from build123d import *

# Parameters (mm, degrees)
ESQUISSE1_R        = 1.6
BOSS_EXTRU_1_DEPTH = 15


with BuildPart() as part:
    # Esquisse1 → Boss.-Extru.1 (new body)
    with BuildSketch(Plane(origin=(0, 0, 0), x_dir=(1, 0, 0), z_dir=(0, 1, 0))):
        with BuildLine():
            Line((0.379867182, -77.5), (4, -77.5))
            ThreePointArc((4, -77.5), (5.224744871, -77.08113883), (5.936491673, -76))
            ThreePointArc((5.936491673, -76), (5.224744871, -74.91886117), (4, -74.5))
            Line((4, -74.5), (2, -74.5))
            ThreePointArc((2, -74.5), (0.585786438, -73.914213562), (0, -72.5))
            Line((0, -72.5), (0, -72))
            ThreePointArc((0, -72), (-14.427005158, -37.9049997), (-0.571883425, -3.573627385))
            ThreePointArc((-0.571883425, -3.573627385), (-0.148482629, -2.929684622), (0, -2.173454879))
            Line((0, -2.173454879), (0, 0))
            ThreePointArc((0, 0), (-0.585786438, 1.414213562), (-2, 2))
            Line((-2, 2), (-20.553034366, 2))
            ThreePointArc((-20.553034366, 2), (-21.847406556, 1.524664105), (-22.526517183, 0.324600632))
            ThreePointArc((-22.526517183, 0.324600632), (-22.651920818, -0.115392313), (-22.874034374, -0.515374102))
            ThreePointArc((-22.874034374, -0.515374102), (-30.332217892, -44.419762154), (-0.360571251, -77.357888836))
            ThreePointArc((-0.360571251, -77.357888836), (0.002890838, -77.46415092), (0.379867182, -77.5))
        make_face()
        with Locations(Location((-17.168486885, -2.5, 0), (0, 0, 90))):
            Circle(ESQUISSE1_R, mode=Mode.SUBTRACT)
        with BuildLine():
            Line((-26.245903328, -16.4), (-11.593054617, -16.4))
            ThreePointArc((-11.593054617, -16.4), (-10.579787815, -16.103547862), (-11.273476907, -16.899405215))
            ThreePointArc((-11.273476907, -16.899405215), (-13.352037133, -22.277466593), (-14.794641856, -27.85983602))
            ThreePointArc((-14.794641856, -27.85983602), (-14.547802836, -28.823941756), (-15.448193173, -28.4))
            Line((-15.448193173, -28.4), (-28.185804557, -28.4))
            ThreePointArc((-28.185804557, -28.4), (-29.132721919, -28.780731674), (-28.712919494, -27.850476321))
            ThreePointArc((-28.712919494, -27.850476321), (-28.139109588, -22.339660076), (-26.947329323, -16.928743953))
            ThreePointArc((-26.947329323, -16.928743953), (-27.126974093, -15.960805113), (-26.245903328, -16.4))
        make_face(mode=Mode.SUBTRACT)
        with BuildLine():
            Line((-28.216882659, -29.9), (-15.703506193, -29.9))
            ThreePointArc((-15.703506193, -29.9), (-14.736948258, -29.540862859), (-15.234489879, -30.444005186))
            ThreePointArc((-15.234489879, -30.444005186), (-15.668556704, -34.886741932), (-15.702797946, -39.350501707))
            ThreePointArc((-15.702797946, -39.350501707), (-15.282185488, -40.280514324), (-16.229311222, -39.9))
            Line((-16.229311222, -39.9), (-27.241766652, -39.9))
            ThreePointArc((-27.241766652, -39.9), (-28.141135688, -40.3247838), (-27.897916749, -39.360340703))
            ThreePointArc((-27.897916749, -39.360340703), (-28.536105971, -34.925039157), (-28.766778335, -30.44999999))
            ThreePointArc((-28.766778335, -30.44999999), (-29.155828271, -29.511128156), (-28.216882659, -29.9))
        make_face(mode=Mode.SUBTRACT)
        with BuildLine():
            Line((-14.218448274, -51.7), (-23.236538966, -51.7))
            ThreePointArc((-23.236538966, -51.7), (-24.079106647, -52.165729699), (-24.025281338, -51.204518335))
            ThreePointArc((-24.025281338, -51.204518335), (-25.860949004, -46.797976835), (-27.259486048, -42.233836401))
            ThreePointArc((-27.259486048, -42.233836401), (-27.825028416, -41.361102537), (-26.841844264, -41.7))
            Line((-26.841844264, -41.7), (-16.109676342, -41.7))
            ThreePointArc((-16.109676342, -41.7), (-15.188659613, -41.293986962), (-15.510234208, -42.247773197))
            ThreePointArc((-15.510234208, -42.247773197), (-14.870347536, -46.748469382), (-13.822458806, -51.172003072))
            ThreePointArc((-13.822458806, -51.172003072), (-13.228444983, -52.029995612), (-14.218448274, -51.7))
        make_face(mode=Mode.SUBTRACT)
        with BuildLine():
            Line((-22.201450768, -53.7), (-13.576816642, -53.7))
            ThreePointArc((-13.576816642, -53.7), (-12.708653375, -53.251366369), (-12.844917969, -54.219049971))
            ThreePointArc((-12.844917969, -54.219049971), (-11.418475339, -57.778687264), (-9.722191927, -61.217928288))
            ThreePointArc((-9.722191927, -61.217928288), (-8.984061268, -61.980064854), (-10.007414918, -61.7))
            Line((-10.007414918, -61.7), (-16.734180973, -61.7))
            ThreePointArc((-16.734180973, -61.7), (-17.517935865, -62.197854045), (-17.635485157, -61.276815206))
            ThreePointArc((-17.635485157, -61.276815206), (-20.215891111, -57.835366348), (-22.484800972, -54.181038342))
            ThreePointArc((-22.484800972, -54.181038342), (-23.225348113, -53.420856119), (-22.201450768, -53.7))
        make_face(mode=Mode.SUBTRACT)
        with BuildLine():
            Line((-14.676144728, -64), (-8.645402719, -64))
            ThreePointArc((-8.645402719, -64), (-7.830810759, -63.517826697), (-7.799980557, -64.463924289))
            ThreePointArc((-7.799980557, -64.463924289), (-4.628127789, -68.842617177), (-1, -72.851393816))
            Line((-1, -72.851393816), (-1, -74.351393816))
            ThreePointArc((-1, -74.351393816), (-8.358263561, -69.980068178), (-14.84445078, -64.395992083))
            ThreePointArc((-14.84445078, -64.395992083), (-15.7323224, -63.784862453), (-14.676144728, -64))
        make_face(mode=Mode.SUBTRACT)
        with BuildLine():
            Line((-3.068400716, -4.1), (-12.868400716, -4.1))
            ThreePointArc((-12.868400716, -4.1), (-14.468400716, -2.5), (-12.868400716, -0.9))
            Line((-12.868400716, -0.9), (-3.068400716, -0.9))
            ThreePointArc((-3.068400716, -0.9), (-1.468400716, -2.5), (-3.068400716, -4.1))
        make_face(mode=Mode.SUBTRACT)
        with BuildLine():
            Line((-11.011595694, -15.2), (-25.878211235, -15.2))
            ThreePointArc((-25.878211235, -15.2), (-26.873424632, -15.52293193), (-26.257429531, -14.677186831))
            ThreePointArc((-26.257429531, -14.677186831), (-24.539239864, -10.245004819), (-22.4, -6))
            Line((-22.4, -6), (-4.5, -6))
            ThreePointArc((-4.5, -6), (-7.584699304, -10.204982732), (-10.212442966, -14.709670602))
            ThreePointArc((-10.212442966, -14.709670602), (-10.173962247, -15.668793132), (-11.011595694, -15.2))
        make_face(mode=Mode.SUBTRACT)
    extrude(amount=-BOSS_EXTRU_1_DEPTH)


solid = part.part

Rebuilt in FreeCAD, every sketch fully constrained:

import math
import FreeCAD as App
import Part
import Sketcher
from FreeCAD import Vector
Q = App.Units.Quantity

doc = App.newDocument("Part")
params = doc.addObject("Spreadsheet::Sheet", "Params")
for row, (alias, value) in enumerate([
    ("sketch1_radius", "2 mm"),
    ("sketch1_diameter", "3.2 mm"),
    ("sketch1_width", "2 mm"),
    ("sketch1_radius2", "0.55 mm"),
    ("sketch1_width2", "17.9 mm"),
    ("pad1_length", "15 mm"),
], start=1):
    params.set(f"A{row}", alias)
    params.set(f"B{row}", "=" + value)
    params.setAlias(f"B{row}", alias)

body = doc.addObject("PartDesign::Body", "Body")

# Sketch on XZ plane
sketch1 = body.newObject("Sketcher::SketchObject", "Sketch")
sketch1.AttachmentSupport = (doc.getObject("XZ_Plane"), [""])
sketch1.MapMode = "FlatFace"
sketch1.addGeometry([
    Part.LineSegment(Vector(0.38, 77.5, 0), Vector(4, 77.5, 0)),  # 0
    Part.ArcOfCircle(Part.Circle(Vector(4, 75.5, 0), Vector(0, 0, 1), 2), math.radians(14), math.radians(90)),  # 1
    Part.ArcOfCircle(Part.Circle(Vector(4, 76.5, 0), Vector(0, 0, 1), 2), math.radians(-90), math.radians(-14)),  # 2
    Part.LineSegment(Vector(4, 74.5, 0), Vector(2, 74.5, 0)),  # 3
    Part.ArcOfCircle(Part.Circle(Vector(2, 72.5, 0), Vector(0, 0, 1), 2), math.radians(90), math.radians(180)),  # 4
    Part.LineSegment(Vector(0, 72.5, 0), Vector(0, 72, 0)),  # 5
    Part.ArcOfCircle(Part.Circle(Vector(34.03, 37.5, 0), Vector(0, 0, 1), 48.46), math.radians(135), math.radians(224)),  # 6
    Part.ArcOfCircle(Part.Circle(Vector(-2, 2.17, 0), Vector(0, 0, 1), 2), math.radians(0), math.radians(44)),  # 7
    Part.LineSegment(Vector(0, 2.17, 0), Vector(0, 0, 0)),  # 8
    Part.ArcOfCircle(Part.Circle(Vector(-2, 0, 0), Vector(0, 0, 1), 2), math.radians(-90), math.radians(0)),  # 9
    Part.LineSegment(Vector(-2, -2, 0), Vector(-20.55, -2, 0)),  # 10
    Part.ArcOfCircle(Part.Circle(Vector(-20.55, 0, 0), Vector(0, 0, 1), 2), math.radians(-171), math.radians(-90)),  # 11
    Part.ArcOfCircle(Part.Circle(Vector(-24.5, -0.65, 0), Vector(0, 0, 1), 2), math.radians(9), math.radians(36)),  # 12
    Part.ArcOfCircle(Part.Circle(Vector(18.46, 30.12, 0), Vector(0, 0, 1), 50.85), math.radians(112), math.radians(216)),  # 13
    Part.ArcOfCircle(Part.Circle(Vector(0.38, 75.5, 0), Vector(0, 0, 1), 2), math.radians(90), math.radians(112)),  # 14
    Part.ArcOfCircle(Part.Circle(Vector(-22.75, 53.7, 0), Vector(0, 0, 1), 0.55), math.radians(61), math.radians(360)),  # 15
    Part.LineSegment(Vector(-22.2, 53.7, 0), Vector(-13.58, 53.7, 0)),  # 16
    Part.ArcOfCircle(Part.Circle(Vector(-13.03, 53.7, 0), Vector(0, 0, 1), 0.55), math.radians(180), math.radians(431)),  # 17
    Part.ArcOfCircle(Part.Circle(Vector(34.03, 37.5, 0), Vector(0, 0, 1), 49.77), math.radians(151.54), math.radians(160.37)),  # 18
    Part.ArcOfCircle(Part.Circle(Vector(-9.46, 61.7, 0), Vector(0, 0, 1), 0.55), math.radians(-119), math.radians(180)),  # 19
    Part.LineSegment(Vector(-10.01, 61.7, 0), Vector(-16.73, 61.7, 0)),  # 20
    Part.ArcOfCircle(Part.Circle(Vector(-17.28, 61.7, 0), Vector(0, 0, 1), 0.55), math.radians(0), math.radians(230)),  # 21
    Part.ArcOfCircle(Part.Circle(Vector(20.27, 30.17, 0), Vector(0, 0, 1), 49.04), math.radians(140.62), math.radians(150.68)),  # 22
    Part.ArcOfCircle(Part.Circle(Vector(-13.67, 51.7, 0), Vector(0, 0, 1), 0.55), math.radians(-106), math.radians(180)),  # 23
    Part.LineSegment(Vector(-14.22, 51.7, 0), Vector(-23.24, 51.7, 0)),  # 24
    Part.ArcOfCircle(Part.Circle(Vector(-23.79, 51.7, 0), Vector(0, 0, 1), 0.55), math.radians(0), math.radians(244)),  # 25
    Part.ArcOfCircle(Part.Circle(Vector(20.27, 30.17, 0), Vector(0, 0, 1), 49.04), math.radians(154.59), math.radians(165.75)),  # 26
    Part.ArcOfCircle(Part.Circle(Vector(-27.39, 41.7, 0), Vector(0, 0, 1), 0.55), math.radians(76), math.radians(360)),  # 27
    Part.LineSegment(Vector(-26.84, 41.7, 0), Vector(-16.11, 41.7, 0)),  # 28
    Part.ArcOfCircle(Part.Circle(Vector(-15.56, 41.7, 0), Vector(0, 0, 1), 0.55), math.radians(180), math.radians(445)),  # 29
    Part.ArcOfCircle(Part.Circle(Vector(34.03, 37.5, 0), Vector(0, 0, 1), 49.77), math.radians(164.06), math.radians(174.53)),  # 30
    Part.ArcOfCircle(Part.Circle(Vector(-15.23, 64, 0), Vector(0, 0, 1), 0.55), math.radians(46), math.radians(360)),  # 31
    Part.LineSegment(Vector(-14.68, 64, 0), Vector(-8.65, 64, 0)),  # 32
    Part.ArcOfCircle(Part.Circle(Vector(-8.1, 64, 0), Vector(0, 0, 1), 0.55), math.radians(180), math.radians(418)),  # 33
    Part.ArcOfCircle(Part.Circle(Vector(34.03, 37.5, 0), Vector(0, 0, 1), 49.77), math.radians(134.74), math.radians(147.19)),  # 34
    Part.LineSegment(Vector(-1, 72.85, 0), Vector(-1, 74.35, 0)),  # 35
    Part.ArcOfCircle(Part.Circle(Vector(20.27, 30.17, 0), Vector(0, 0, 1), 49.04), math.radians(116), math.radians(136)),  # 36
    Part.ArcOfCircle(Part.Circle(Vector(-28.77, 29.9, 0), Vector(0, 0, 1), 0.55), math.radians(90), math.radians(360)),  # 37
    Part.LineSegment(Vector(-28.22, 29.9, 0), Vector(-15.7, 29.9, 0)),  # 38
    Part.ArcOfCircle(Part.Circle(Vector(-15.15, 29.9, 0), Vector(0, 0, 1), 0.55), math.radians(180), math.radians(458)),  # 39
    Part.ArcOfCircle(Part.Circle(Vector(34.03, 37.5, 0), Vector(0, 0, 1), 49.77), math.radians(177.87), math.radians(188.15)),  # 40
    Part.ArcOfCircle(Part.Circle(Vector(-15.68, 39.9, 0), Vector(0, 0, 1), 0.55), math.radians(-92), math.radians(180)),  # 41
    Part.LineSegment(Vector(-16.23, 39.9, 0), Vector(-27.24, 39.9, 0)),  # 42
    Part.ArcOfCircle(Part.Circle(Vector(-27.79, 39.9, 0), Vector(0, 0, 1), 0.55), math.radians(0), math.radians(259)),  # 43
    Part.ArcOfCircle(Part.Circle(Vector(20.27, 30.17, 0), Vector(0, 0, 1), 49.04), math.radians(169.19), math.radians(179.67)),  # 44
    Part.ArcOfCircle(Part.Circle(Vector(-26.8, 16.4, 0), Vector(0, 0, 1), 0.55), math.radians(106), math.radians(360)),  # 45
    Part.LineSegment(Vector(-26.25, 16.4, 0), Vector(-11.59, 16.4, 0)),  # 46
    Part.ArcOfCircle(Part.Circle(Vector(-11.04, 16.4, 0), Vector(0, 0, 1), 0.55), math.radians(180), math.radians(475)),  # 47
    Part.ArcOfCircle(Part.Circle(Vector(34.03, 37.5, 0), Vector(0, 0, 1), 49.77), math.radians(-168.83), math.radians(-155.55)),  # 48
    Part.ArcOfCircle(Part.Circle(Vector(-14.9, 28.4, 0), Vector(0, 0, 1), 0.55), math.radians(-79), math.radians(180)),  # 49
    Part.LineSegment(Vector(-15.45, 28.4, 0), Vector(-28.19, 28.4, 0)),  # 50
    Part.ArcOfCircle(Part.Circle(Vector(-28.74, 28.4, 0), Vector(0, 0, 1), 0.55), math.radians(0), math.radians(272)),  # 51
    Part.ArcOfCircle(Part.Circle(Vector(20.27, 30.17, 0), Vector(0, 0, 1), 49.04), math.radians(-177.29), math.radians(-164.34)),  # 52
    Part.ArcOfCircle(Part.Circle(Vector(-10.46, 15.2, 0), Vector(0, 0, 1), 0.55), math.radians(-63), math.radians(180)),  # 53
    Part.LineSegment(Vector(-11.01, 15.2, 0), Vector(-25.88, 15.2, 0)),  # 54
    Part.ArcOfCircle(Part.Circle(Vector(-26.43, 15.2, 0), Vector(0, 0, 1), 0.55), math.radians(0), math.radians(288)),  # 55
    Part.ArcOfCircle(Part.Circle(Vector(20.27, 30.17, 0), Vector(0, 0, 1), 49.04), math.radians(-161.59), math.radians(-150.48)),  # 56
    Part.LineSegment(Vector(-22.4, 6, 0), Vector(-4.5, 6, 0)),  # 57
    Part.ArcOfCircle(Part.Circle(Vector(34.03, 37.5, 0), Vector(0, 0, 1), 49.77), math.radians(-152.75), math.radians(-140.73)),  # 58
    Part.Circle(Vector(-17.17, 2.5, 0), Vector(0, 0, 1), 1.6),  # 59
    Part.ArcOfCircle(Part.Circle(Vector(-3.07, 2.5, 0), Vector(0, 0, 1), 1.6), math.radians(-90), math.radians(90)),  # 60
    Part.LineSegment(Vector(-3.07, 4.1, 0), Vector(-12.87, 4.1, 0)),  # 61
    Part.ArcOfCircle(Part.Circle(Vector(-12.87, 2.5, 0), Vector(0, 0, 1), 1.6), math.radians(90), math.radians(270)),  # 62
    Part.LineSegment(Vector(-12.87, 0.9, 0), Vector(-3.07, 0.9, 0)),  # 63
], False)
sketch1.addConstraint([
    Sketcher.Constraint("Tangent", 0, 2, 1, 2),
    Sketcher.Constraint("Coincident", 1, 1, 2, 2),
    Sketcher.Constraint("Tangent", 2, 1, 3, 1),
    Sketcher.Constraint("Tangent", 3, 2, 4, 1),
    Sketcher.Constraint("Tangent", 4, 2, 5, 1),
    Sketcher.Constraint("Coincident", 5, 2, 6, 1),
    Sketcher.Constraint("Tangent", 6, 2, 7, 2),
    Sketcher.Constraint("Tangent", 7, 1, 8, 1),
    Sketcher.Constraint("Tangent", 8, 2, 9, 2),
    Sketcher.Constraint("Tangent", 9, 1, 10, 1),
    Sketcher.Constraint("Tangent", 10, 2, 11, 2),
    Sketcher.Constraint("Tangent", 11, 1, 12, 1),
    Sketcher.Constraint("Tangent", 12, 2, 13, 2),
    Sketcher.Constraint("Tangent", 13, 1, 14, 2),
    Sketcher.Constraint("Tangent", 14, 1, 0, 1),
    Sketcher.Constraint("Coincident", 15, 2, 16, 1),
    Sketcher.Constraint("Coincident", 16, 2, 17, 1),
    Sketcher.Constraint("Coincident", 17, 2, 18, 2),
    Sketcher.Constraint("Coincident", 18, 1, 19, 1),
    Sketcher.Constraint("Coincident", 19, 2, 20, 1),
    Sketcher.Constraint("Coincident", 20, 2, 21, 1),
    Sketcher.Constraint("Coincident", 21, 2, 22, 1),
    Sketcher.Constraint("Coincident", 22, 2, 15, 1),
    Sketcher.Constraint("Coincident", 23, 2, 24, 1),
    Sketcher.Constraint("Coincident", 24, 2, 25, 1),
    Sketcher.Constraint("Coincident", 25, 2, 26, 1),
    Sketcher.Constraint("Coincident", 26, 2, 27, 1),
    Sketcher.Constraint("Coincident", 27, 2, 28, 1),
    Sketcher.Constraint("Coincident", 28, 2, 29, 1),
    Sketcher.Constraint("Coincident", 29, 2, 30, 2),
    Sketcher.Constraint("Coincident", 30, 1, 23, 1),
    Sketcher.Constraint("Coincident", 31, 2, 32, 1),
    Sketcher.Constraint("Coincident", 32, 2, 33, 1),
    Sketcher.Constraint("Coincident", 33, 2, 34, 2),
    Sketcher.Constraint("Coincident", 34, 1, 35, 1),
    Sketcher.Constraint("Coincident", 35, 2, 36, 1),
    Sketcher.Constraint("Coincident", 36, 2, 31, 1),
    Sketcher.Constraint("Coincident", 37, 2, 38, 1),
    Sketcher.Constraint("Coincident", 38, 2, 39, 1),
    Sketcher.Constraint("Coincident", 39, 2, 40, 2),
    Sketcher.Constraint("Coincident", 40, 1, 41, 1),
    Sketcher.Constraint("Coincident", 41, 2, 42, 1),
    Sketcher.Constraint("Coincident", 42, 2, 43, 1),
    Sketcher.Constraint("Coincident", 43, 2, 44, 1),
    Sketcher.Constraint("Coincident", 44, 2, 37, 1),
    Sketcher.Constraint("Coincident", 45, 2, 46, 1),
    Sketcher.Constraint("Coincident", 46, 2, 47, 1),
    Sketcher.Constraint("Coincident", 47, 2, 48, 2),
    Sketcher.Constraint("Coincident", 48, 1, 49, 1),
    Sketcher.Constraint("Coincident", 49, 2, 50, 1),
    Sketcher.Constraint("Coincident", 50, 2, 51, 1),
    Sketcher.Constraint("Coincident", 51, 2, 52, 1),
    Sketcher.Constraint("Coincident", 52, 2, 45, 1),
    Sketcher.Constraint("Coincident", 53, 2, 54, 1),
    Sketcher.Constraint("Coincident", 54, 2, 55, 1),
    Sketcher.Constraint("Coincident", 55, 2, 56, 1),
    Sketcher.Constraint("Coincident", 56, 2, 57, 1),
    Sketcher.Constraint("Coincident", 57, 2, 58, 2),
    Sketcher.Constraint("Coincident", 58, 1, 53, 1),
    Sketcher.Constraint("Tangent", 60, 2, 61, 1),
    Sketcher.Constraint("Tangent", 61, 2, 62, 1),
    Sketcher.Constraint("Tangent", 62, 2, 63, 1),
    Sketcher.Constraint("Tangent", 63, 2, 60, 1),
    Sketcher.Constraint("Horizontal", 0),
    Sketcher.Constraint("Horizontal", 3),
    Sketcher.Constraint("Vertical", 5),
    Sketcher.Constraint("Vertical", 8),
    Sketcher.Constraint("Horizontal", 10),
    Sketcher.Constraint("Horizontal", 16),
    Sketcher.Constraint("Horizontal", 20),
    Sketcher.Constraint("Horizontal", 24),
    Sketcher.Constraint("Horizontal", 28),
    Sketcher.Constraint("Horizontal", 32),
    Sketcher.Constraint("Vertical", 35),
    Sketcher.Constraint("Horizontal", 38),
    Sketcher.Constraint("Horizontal", 42),
    Sketcher.Constraint("Horizontal", 46),
    Sketcher.Constraint("Horizontal", 50),
    Sketcher.Constraint("Horizontal", 54),
    Sketcher.Constraint("Horizontal", 57),
    Sketcher.Constraint("Horizontal", 61),
    Sketcher.Constraint("Horizontal", 63),
    Sketcher.Constraint("Coincident", 8, 2, -1, 1),
    Sketcher.Constraint("Coincident", 18, 3, 6, 3),
    Sketcher.Constraint("Coincident", 26, 3, 22, 3),
    Sketcher.Constraint("Coincident", 30, 3, 6, 3),
    Sketcher.Constraint("Coincident", 34, 3, 6, 3),
    Sketcher.Constraint("Coincident", 36, 3, 22, 3),
    Sketcher.Constraint("Coincident", 40, 3, 6, 3),
    Sketcher.Constraint("Coincident", 44, 3, 22, 3),
    Sketcher.Constraint("Coincident", 48, 3, 6, 3),
    Sketcher.Constraint("Coincident", 52, 3, 22, 3),
    Sketcher.Constraint("Coincident", 56, 3, 22, 3),
    Sketcher.Constraint("Coincident", 58, 3, 6, 3),
    Sketcher.Constraint("Equal", 1, 2),
    Sketcher.Constraint("Equal", 2, 4),
    Sketcher.Constraint("Equal", 4, 7),
    Sketcher.Constraint("Equal", 7, 9),
    Sketcher.Constraint("Equal", 9, 11),
    Sketcher.Constraint("Equal", 11, 12),
    Sketcher.Constraint("Equal", 12, 14),
    Sketcher.Constraint("Equal", 15, 17),
    Sketcher.Constraint("Equal", 17, 19),
    Sketcher.Constraint("Equal", 19, 21),
    Sketcher.Constraint("Equal", 21, 23),
    Sketcher.Constraint("Equal", 23, 25),
    Sketcher.Constraint("Equal", 22, 26),
    Sketcher.Constraint("Equal", 25, 27),
    Sketcher.Constraint("Equal", 27, 29),
    Sketcher.Constraint("Equal", 18, 30),
    Sketcher.Constraint("Equal", 29, 31),
    Sketcher.Constraint("Equal", 31, 33),
    Sketcher.Constraint("Equal", 30, 34),
    Sketcher.Constraint("Equal", 26, 36),
    Sketcher.Constraint("Equal", 33, 37),
    Sketcher.Constraint("Equal", 37, 39),
    Sketcher.Constraint("Equal", 34, 40),
    Sketcher.Constraint("Equal", 39, 41),
    Sketcher.Constraint("Equal", 41, 43),
    Sketcher.Constraint("Equal", 36, 44),
    Sketcher.Constraint("Equal", 43, 45),
    Sketcher.Constraint("Equal", 45, 47),
    Sketcher.Constraint("Equal", 40, 48),
    Sketcher.Constraint("Equal", 47, 49),
    Sketcher.Constraint("Equal", 49, 51),
    Sketcher.Constraint("Equal", 44, 52),
    Sketcher.Constraint("Equal", 51, 53),
    Sketcher.Constraint("Equal", 53, 55),
    Sketcher.Constraint("Equal", 52, 56),
    Sketcher.Constraint("Equal", 48, 58),
    Sketcher.Constraint("Equal", 59, 60),
    Sketcher.Constraint("PointOnObject", 4, 2, -2),
    Sketcher.Constraint("Horizontal", 15, 3, 17, 3),
    Sketcher.Constraint("Horizontal", 19, 3, 21, 3),
    Sketcher.Constraint("Horizontal", 23, 3, 25, 3),
    Sketcher.Constraint("Horizontal", 27, 3, 29, 3),
    Sketcher.Constraint("Horizontal", 31, 3, 33, 3),
    Sketcher.Constraint("Horizontal", 37, 3, 39, 3),
    Sketcher.Constraint("Horizontal", 41, 3, 43, 3),
    Sketcher.Constraint("Horizontal", 45, 3, 47, 3),
    Sketcher.Constraint("Horizontal", 49, 3, 51, 3),
    Sketcher.Constraint("Horizontal", 53, 3, 55, 3),
    Sketcher.Constraint("Horizontal", 59, 3, 60, 3),
    Sketcher.Constraint("Horizontal", 17, 3, 15, 2),
    Sketcher.Constraint("Horizontal", 21, 3, 19, 2),
    Sketcher.Constraint("Horizontal", 25, 3, 23, 2),
    Sketcher.Constraint("Horizontal", 29, 3, 27, 2),
    Sketcher.Constraint("Horizontal", 33, 3, 31, 2),
    Sketcher.Constraint("Horizontal", 39, 3, 37, 2),
    Sketcher.Constraint("Horizontal", 43, 3, 41, 2),
    Sketcher.Constraint("Horizontal", 47, 3, 45, 2),
    Sketcher.Constraint("Horizontal", 51, 3, 49, 2),
    Sketcher.Constraint("Horizontal", 55, 3, 53, 2),
    Sketcher.Constraint("Vertical", 1, 3, 2, 3),
    Sketcher.Constraint("Radius", 1, Q("2 mm")),
    Sketcher.Constraint("Diameter", 59, Q("3.2 mm")),
    Sketcher.Constraint("DistanceX", 3, 2, 3, 1, Q("2 mm")),
    Sketcher.Constraint("Radius", 15, Q("0.55 mm")),
    Sketcher.Constraint("DistanceX", 57, 1, 57, 2, Q("17.9 mm")),
    Sketcher.Constraint("DistanceX", 61, 2, 61, 1, Q("9.8 mm")),
    Sketcher.Constraint("DistanceY", 5, 2, 5, 1, Q("0.5 mm")),
    Sketcher.Constraint("DistanceY", 35, 1, 35, 2, Q("1.5 mm")),
    Sketcher.Constraint("DistanceY", -1, 1, 31, 3, Q("64 mm")),
    Sketcher.Constraint("DistanceY", -1, 1, 1, 1, Q("76 mm")),
    Sketcher.Constraint("DistanceY", -1, 1, 5, 2, Q("72 mm")),
    Sketcher.Constraint("DistanceX", 34, 1, -1, 1, Q("1 mm")),
    Sketcher.Constraint("DistanceY", -1, 1, 56, 2, Q("6 mm")),
    Sketcher.Constraint("DistanceY", -1, 1, 6, 3, Q("37.5 mm")),
    Sketcher.Constraint("DistanceX", 12, 3, -1, 1, Q("24.5 mm")),
    Sketcher.Constraint("DistanceY", -1, 1, 15, 3, Q("53.7 mm")),
    Sketcher.Constraint("DistanceY", -1, 1, 19, 3, Q("61.7 mm")),
    Sketcher.Constraint("DistanceY", -1, 1, 23, 3, Q("51.7 mm")),
    Sketcher.Constraint("DistanceY", -1, 1, 27, 3, Q("41.7 mm")),
    Sketcher.Constraint("DistanceY", -1, 1, 37, 3, Q("29.9 mm")),
    Sketcher.Constraint("DistanceY", -1, 1, 41, 3, Q("39.9 mm")),
    Sketcher.Constraint("DistanceY", -1, 1, 45, 3, Q("16.4 mm")),
    Sketcher.Constraint("DistanceY", -1, 1, 49, 3, Q("28.4 mm")),
    Sketcher.Constraint("DistanceY", -1, 1, 53, 3, Q("15.2 mm")),
    Sketcher.Constraint("DistanceY", -1, 1, 59, 3, Q("2.5 mm")),
    Sketcher.Constraint("DistanceX", 56, 2, -1, 1, Q("22.4 mm")),
    Sketcher.Constraint("Radius", 18, Q("49.768791 mm")),
    Sketcher.Constraint("Radius", 22, Q("49.039442 mm")),
    Sketcher.Constraint("Radius", 13, Q("50.847593 mm")),
    Sketcher.Constraint("DistanceX", 24, 2, 24, 1, Q("9.018091 mm")),
    Sketcher.Constraint("DistanceX", 46, 1, 46, 2, Q("14.652849 mm")),
    Sketcher.Constraint("DistanceX", 50, 2, 50, 1, Q("12.737611 mm")),
    Sketcher.Constraint("DistanceY", 12, 3, -1, 1, Q("0.649201 mm")),
    Sketcher.Constraint("DistanceY", -1, 1, 13, 3, Q("30.123301 mm")),
    Sketcher.Constraint("DistanceX", 60, 3, -1, 1, Q("3.068401 mm")),
    Sketcher.Constraint("DistanceX", 22, 2, -1, 1, Q("22.484801 mm")),
    Sketcher.Constraint("DistanceX", 16, 1, 16, 2, Q("8.624634 mm")),
    Sketcher.Constraint("DistanceX", 20, 2, 20, 1, Q("6.726766 mm")),
    Sketcher.Constraint("DistanceX", 28, 1, 28, 2, Q("10.732168 mm")),
    Sketcher.Constraint("DistanceX", 32, 1, 32, 2, Q("6.030742 mm")),
    Sketcher.Constraint("DistanceX", 38, 1, 38, 2, Q("12.513376 mm")),
    Sketcher.Constraint("DistanceX", 42, 2, 42, 1, Q("11.012455 mm")),
    Sketcher.Constraint("DistanceX", 54, 2, 54, 1, Q("14.866616 mm")),
    Sketcher.Constraint("DistanceX", 21, 3, -1, 1, Q("17.284181 mm")),
    Sketcher.Constraint("DistanceX", 23, 3, -1, 1, Q("13.668448 mm")),
    Sketcher.Constraint("DistanceX", 41, 3, -1, 1, Q("15.679311 mm")),
    Sketcher.Constraint("DistanceX", 55, 3, -1, 1, Q("26.428211 mm")),
    Sketcher.Constraint("DistanceX", 33, 2, -1, 1, Q("7.799981 mm")),
    Sketcher.Constraint("DistanceX", 39, 2, -1, 1, Q("15.23449 mm")),
    Sketcher.Constraint("DistanceX", 27, 3, -1, 1, Q("27.391844 mm")),
    Sketcher.Constraint("DistanceX", 45, 3, -1, 1, Q("26.795903 mm")),
    Sketcher.Constraint("DistanceX", 49, 3, -1, 1, Q("14.898193 mm")),
    Sketcher.Constraint("DistanceX", 59, 3, -1, 1, Q("17.168487 mm")),
])
sketch1.setExpression("Constraints[154]", "Params.sketch1_radius")
sketch1.setExpression("Constraints[155]", "Params.sketch1_diameter")
sketch1.setExpression("Constraints[156]", "Params.sketch1_width")
sketch1.setExpression("Constraints[157]", "Params.sketch1_radius2")
sketch1.setExpression("Constraints[158]", "Params.sketch1_width2")
pad1 = body.newObject("PartDesign::Pad", "Pad")
pad1.Profile = sketch1
pad1.setExpression("Length", "Params.pad1_length")

doc.recompute()
